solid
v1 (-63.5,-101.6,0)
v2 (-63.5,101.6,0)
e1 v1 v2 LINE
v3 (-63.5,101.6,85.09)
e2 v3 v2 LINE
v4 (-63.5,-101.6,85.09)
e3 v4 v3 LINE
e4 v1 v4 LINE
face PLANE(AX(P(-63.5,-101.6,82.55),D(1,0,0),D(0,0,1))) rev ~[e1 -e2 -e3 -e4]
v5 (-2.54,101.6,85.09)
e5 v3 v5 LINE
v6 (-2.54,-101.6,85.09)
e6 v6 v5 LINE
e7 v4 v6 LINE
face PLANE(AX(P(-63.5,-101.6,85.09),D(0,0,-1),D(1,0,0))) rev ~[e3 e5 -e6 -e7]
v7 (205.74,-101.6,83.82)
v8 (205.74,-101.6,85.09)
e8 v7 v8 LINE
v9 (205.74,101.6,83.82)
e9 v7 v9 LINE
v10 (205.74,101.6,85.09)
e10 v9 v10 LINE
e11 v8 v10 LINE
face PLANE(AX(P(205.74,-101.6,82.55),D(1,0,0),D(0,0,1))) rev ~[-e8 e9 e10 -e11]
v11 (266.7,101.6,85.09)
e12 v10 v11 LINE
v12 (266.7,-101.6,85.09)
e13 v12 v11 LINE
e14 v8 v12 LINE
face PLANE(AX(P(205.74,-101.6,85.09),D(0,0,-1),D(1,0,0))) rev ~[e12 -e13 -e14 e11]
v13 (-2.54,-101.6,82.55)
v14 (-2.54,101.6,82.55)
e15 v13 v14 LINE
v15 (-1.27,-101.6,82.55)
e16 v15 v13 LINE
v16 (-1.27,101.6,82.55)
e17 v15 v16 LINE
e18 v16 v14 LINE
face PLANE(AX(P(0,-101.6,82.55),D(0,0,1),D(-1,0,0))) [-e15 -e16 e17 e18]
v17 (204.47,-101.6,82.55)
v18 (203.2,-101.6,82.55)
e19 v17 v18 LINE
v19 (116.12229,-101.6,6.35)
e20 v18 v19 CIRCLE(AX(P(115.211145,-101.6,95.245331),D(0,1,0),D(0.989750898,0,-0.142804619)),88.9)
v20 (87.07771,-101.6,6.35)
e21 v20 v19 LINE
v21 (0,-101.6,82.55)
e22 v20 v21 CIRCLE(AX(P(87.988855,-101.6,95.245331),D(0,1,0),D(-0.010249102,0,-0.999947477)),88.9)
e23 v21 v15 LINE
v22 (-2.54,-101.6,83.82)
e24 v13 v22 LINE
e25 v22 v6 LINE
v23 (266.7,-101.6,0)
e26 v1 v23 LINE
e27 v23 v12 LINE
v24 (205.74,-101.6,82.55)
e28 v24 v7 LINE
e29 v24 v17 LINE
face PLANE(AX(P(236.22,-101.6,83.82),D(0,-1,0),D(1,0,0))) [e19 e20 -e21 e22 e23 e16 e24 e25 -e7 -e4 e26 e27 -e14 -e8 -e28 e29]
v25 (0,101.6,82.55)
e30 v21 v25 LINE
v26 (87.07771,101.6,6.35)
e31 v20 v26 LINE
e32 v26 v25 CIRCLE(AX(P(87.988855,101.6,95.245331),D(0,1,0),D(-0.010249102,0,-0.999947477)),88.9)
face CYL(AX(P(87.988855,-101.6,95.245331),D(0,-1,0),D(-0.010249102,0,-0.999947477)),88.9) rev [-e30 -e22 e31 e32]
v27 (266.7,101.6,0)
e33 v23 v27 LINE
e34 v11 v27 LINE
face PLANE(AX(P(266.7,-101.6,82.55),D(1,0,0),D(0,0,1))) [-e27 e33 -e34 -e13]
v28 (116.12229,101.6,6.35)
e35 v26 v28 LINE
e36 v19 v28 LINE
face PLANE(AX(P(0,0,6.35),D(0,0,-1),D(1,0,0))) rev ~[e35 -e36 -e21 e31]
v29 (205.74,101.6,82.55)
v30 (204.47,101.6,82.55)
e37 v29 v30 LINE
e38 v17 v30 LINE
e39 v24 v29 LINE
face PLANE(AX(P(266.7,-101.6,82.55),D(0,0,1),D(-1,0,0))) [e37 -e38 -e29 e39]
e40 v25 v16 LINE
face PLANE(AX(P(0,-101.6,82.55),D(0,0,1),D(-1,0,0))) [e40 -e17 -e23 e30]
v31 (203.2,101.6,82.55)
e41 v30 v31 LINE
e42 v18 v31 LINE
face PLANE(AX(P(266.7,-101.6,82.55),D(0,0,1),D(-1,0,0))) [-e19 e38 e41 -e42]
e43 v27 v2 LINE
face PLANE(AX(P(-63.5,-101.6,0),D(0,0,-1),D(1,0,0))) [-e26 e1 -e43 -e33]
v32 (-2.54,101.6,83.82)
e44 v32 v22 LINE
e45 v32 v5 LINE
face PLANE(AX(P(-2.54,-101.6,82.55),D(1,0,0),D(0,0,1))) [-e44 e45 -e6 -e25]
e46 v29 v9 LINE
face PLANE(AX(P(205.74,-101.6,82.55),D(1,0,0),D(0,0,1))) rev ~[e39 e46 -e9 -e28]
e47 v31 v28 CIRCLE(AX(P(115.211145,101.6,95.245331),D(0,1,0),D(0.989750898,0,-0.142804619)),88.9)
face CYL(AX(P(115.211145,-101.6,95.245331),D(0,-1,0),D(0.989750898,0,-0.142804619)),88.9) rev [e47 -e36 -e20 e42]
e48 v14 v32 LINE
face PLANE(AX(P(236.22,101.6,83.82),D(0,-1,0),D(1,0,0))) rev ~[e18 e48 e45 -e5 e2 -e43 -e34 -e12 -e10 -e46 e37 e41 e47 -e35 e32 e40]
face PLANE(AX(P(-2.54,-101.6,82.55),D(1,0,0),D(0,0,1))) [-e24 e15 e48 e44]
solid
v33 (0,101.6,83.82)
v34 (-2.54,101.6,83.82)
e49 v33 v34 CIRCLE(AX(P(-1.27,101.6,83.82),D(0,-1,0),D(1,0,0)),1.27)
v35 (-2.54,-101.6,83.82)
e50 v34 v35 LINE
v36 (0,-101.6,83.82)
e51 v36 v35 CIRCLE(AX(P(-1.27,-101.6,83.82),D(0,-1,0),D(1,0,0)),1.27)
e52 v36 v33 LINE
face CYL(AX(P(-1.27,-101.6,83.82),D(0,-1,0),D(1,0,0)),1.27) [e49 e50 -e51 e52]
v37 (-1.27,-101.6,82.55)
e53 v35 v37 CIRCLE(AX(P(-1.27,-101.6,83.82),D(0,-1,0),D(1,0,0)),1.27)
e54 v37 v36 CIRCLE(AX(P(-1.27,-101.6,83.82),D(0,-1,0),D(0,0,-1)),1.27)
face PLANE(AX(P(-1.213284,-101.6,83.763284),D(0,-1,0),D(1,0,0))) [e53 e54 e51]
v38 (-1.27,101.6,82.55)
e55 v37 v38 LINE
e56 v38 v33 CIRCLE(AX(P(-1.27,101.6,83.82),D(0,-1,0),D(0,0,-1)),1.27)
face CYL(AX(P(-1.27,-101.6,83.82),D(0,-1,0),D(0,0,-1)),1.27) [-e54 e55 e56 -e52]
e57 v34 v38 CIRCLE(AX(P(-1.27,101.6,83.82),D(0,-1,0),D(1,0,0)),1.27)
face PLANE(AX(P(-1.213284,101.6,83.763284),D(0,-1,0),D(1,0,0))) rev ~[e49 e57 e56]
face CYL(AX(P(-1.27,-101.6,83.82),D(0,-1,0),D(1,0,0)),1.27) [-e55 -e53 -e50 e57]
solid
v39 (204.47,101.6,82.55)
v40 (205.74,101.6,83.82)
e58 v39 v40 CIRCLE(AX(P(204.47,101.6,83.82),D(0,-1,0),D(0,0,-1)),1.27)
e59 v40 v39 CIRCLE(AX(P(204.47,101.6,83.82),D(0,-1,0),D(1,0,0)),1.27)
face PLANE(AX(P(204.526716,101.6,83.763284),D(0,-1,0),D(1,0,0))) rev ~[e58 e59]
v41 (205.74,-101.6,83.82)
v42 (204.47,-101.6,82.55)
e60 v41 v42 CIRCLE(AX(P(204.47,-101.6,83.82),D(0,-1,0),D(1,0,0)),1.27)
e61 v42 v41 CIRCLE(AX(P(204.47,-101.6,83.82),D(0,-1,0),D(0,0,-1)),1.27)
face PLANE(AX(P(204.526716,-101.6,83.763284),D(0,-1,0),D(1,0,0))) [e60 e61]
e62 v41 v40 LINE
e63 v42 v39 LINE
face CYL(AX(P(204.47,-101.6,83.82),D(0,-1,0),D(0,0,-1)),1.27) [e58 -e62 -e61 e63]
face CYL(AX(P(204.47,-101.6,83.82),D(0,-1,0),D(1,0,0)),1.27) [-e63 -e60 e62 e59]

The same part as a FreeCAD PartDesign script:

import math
import FreeCAD as App
import Part
import Sketcher

V = App.Vector
Q = App.Units.Quantity


def add_polygon(sketch, points):
    """Adds a closed chain of lines whose ends are joined by coincident constraints."""
    first, n = sketch.GeometryCount, len(points)
    for a, b in zip(points, points[1:] + points[:1]):
        sketch.addGeometry(Part.LineSegment(App.Vector(*a, 0), App.Vector(*b, 0)), False)
    for i in range(n):
        sketch.addConstraint(Sketcher.Constraint("Coincident", first + i, 2, first + (i + 1) % n, 1))

doc = App.newDocument("Part")
body = doc.addObject("PartDesign::Body", "Body")

# Sketch on XZ plane
sketch1 = body.newObject("Sketcher::SketchObject", "Sketch")
sketch1.AttachmentSupport = (doc.getObject("XZ_Plane"), [""])
sketch1.MapMode = "FlatFace"
add_polygon(sketch1, [(0, 6.35), (0, 0), (203.2, 0), (203.2, 6.35)])  # lines 0-3
sketch1.addConstraint(Sketcher.Constraint("Vertical", 0))
sketch1.addConstraint(Sketcher.Constraint("Horizontal", 1))
sketch1.addConstraint(Sketcher.Constraint("Vertical", 2))
sketch1.addConstraint(Sketcher.Constraint("Horizontal", 3))
sketch1.addConstraint(Sketcher.Constraint("Coincident", 0, 2, -1, 1))
sketch1.addConstraint(Sketcher.Constraint("DistanceX", 1, 1, 1, 2, Q("8 in")))
sketch1.addConstraint(Sketcher.Constraint("DistanceY", 0, 2, 0, 1, Q("0.25 in")))
pad1 = body.newObject("PartDesign::Pad", "Pad")
pad1.Profile = sketch1
pad1.Length = Q("8 in")
pad1.Midplane = True

# Sketch on XZ plane
sketch2 = body.newObject("Sketcher::SketchObject", "Sketch001")
sketch2.AttachmentSupport = (doc.getObject("XZ_Plane"), [""])
sketch2.MapMode = "FlatFace"
sketch2.AttachmentOffset = App.Placement(V(0, 0, 4 * 25.4), App.Rotation())
sketch2.addGeometry(Part.LineSegment(V(0, 82.55, 0), V(-63.5, 82.55, 0)), False)
sketch2.addGeometry(Part.LineSegment(V(-63.5, 82.55, 0), V(-63.5, 0, 0)), False)
sketch2.addGeometry(Part.LineSegment(V(-63.5, 0, 0), V(0, 0, 0)), False)
sketch2.addGeometry(Part.LineSegment(V(0, 0, 0), V(0, 6.35, 0)), False)
sketch2.addGeometry(Part.LineSegment(V(0, 6.35, 0), V(87.07771, 6.35, 0)), False)
sketch2.addGeometry(Part.ArcOfCircle(Part.Circle(V(87.988855, 95.245331, 0), V(0, 0, 1), 88.9), math.radians(-171.78983), math.radians(-90.587241)), False)
sketch2.addGeometry(Part.ArcOfCircle(Part.Circle(V(115.211145, 95.245331, 0), V(0, 0, 1), 88.9), math.radians(-89.412759), math.radians(-8.21017)), False)
sketch2.addGeometry(Part.LineSegment(V(116.12229, 6.35, 0), V(203.2, 6.35, 0)), False)
sketch2.addGeometry(Part.LineSegment(V(203.2, 6.35, 0), V(203.2, 0, 0)), False)
sketch2.addGeometry(Part.LineSegment(V(203.2, 0, 0), V(266.7, 0, 0)), False)
sketch2.addGeometry(Part.LineSegment(V(266.7, 0, 0), V(266.7, 82.55, 0)), False)
sketch2.addGeometry(Part.LineSegment(V(266.7, 82.55, 0), V(203.2, 82.55, 0)), False)
sketch2.addConstraint(Sketcher.Constraint("Coincident", 0, 2, 1, 1))
sketch2.addConstraint(Sketcher.Constraint("Coincident", 1, 2, 2, 1))
sketch2.addConstraint(Sketcher.Constraint("Coincident", 2, 2, 3, 1))
sketch2.addConstraint(Sketcher.Constraint("Coincident", 3, 2, 4, 1))
sketch2.addConstraint(Sketcher.Constraint("Coincident", 4, 2, 5, 2))
sketch2.addConstraint(Sketcher.Constraint("Coincident", 5, 1, 0, 1))
sketch2.addConstraint(Sketcher.Constraint("Coincident", 6, 1, 7, 1))
sketch2.addConstraint(Sketcher.Constraint("Coincident", 7, 2, 8, 1))
sketch2.addConstraint(Sketcher.Constraint("Coincident", 8, 2, 9, 1))
sketch2.addConstraint(Sketcher.Constraint("Coincident", 9, 2, 10, 1))
sketch2.addConstraint(Sketcher.Constraint("Coincident", 10, 2, 11, 1))
sketch2.addConstraint(Sketcher.Constraint("Coincident", 11, 2, 6, 2))
sketch2.addConstraint(Sketcher.Constraint("Horizontal", 0))
sketch2.addConstraint(Sketcher.Constraint("Vertical", 1))
sketch2.addConstraint(Sketcher.Constraint("Horizontal", 2))
sketch2.addConstraint(Sketcher.Constraint("Vertical", 3))
sketch2.addConstraint(Sketcher.Constraint("Horizontal", 4))
sketch2.addConstraint(Sketcher.Constraint("Horizontal", 7))
sketch2.addConstraint(Sketcher.Constraint("Vertical", 8))
sketch2.addConstraint(Sketcher.Constraint("Horizontal", 9))
sketch2.addConstraint(Sketcher.Constraint("Vertical", 10))
sketch2.addConstraint(Sketcher.Constraint("Horizontal", 11))
sketch2.addConstraint(Sketcher.Constraint("Coincident", 2, 2, -1, 1))
sketch2.addConstraint(Sketcher.Constraint("Equal", 5, 6))
sketch2.addConstraint(Sketcher.Constraint("PointOnObject", 5, 1, -2))
sketch2.addConstraint(Sketcher.Constraint("PointOnObject", 8, 2, -1))
sketch2.addConstraint(Sketcher.Constraint("Horizontal", 5, 3, 6, 3))
sketch2.addConstraint(Sketcher.Constraint("Horizontal", 4, 2, 6, 1))
sketch2.addConstraint(Sketcher.Constraint("Horizontal", 5, 1, 10, 2))
sketch2.addConstraint(Sketcher.Constraint("Vertical", 8, 2, 11, 2))
sketch2.addConstraint(Sketcher.Constraint("Equal", 2, 9))
sketch2.addConstraint(Sketcher.Constraint("Radius", 5, Q("3.5 in")))
sketch2.addConstraint(Sketcher.Constraint("DistanceX", 0, 2, 0, 1, Q("2.5 in")))
sketch2.addConstraint(Sketcher.Constraint("DistanceX", -1, 1, 7, 2, Q("8 in")))
sketch2.addConstraint(Sketcher.Constraint("DistanceY", 3, 2, 0, 2, Q("3 in")))
sketch2.addConstraint(Sketcher.Constraint("DistanceY", 1, 2, 1, 1, Q("3.25 in")))
sketch2.addConstraint(Sketcher.Constraint("DistanceX", 4, 1, 4, 2, Q("87.07771 mm")))
pad2 = body.newObject("PartDesign::Pad", "Pad001")
pad2.Profile = sketch2
pad2.Length = Q("8 in")
pad2.Reversed = True
body2 = doc.addObject("PartDesign::Body", "Body001")

# Sketch on XZ plane
sketch3 = body2.newObject("Sketcher::SketchObject", "Sketch002")
sketch3.AttachmentSupport = (doc.getObject("XZ_Plane001"), [""])
sketch3.MapMode = "FlatFace"
sketch3.AttachmentOffset = App.Placement(V(0, 0, 4 * 25.4), App.Rotation())
sketch3.addGeometry(Part.ArcOfCircle(Part.Circle(V(-1.27, 83.82, 0), V(0, 0, 1), 1.27), math.radians(0), math.radians(270)), False)
sketch3.addGeometry(Part.ArcOfCircle(Part.Circle(V(-1.27, 83.82, 0), V(0, 0, 1), 1.27), math.radians(-90), math.radians(0)), False)
sketch3.addConstraint(Sketcher.Constraint("Tangent", 0, 1, 1, 2))
sketch3.addConstraint(Sketcher.Constraint("Coincident", 1, 1, 0, 2))
sketch3.addConstraint(Sketcher.Constraint("PointOnObject", 0, 1, -2))
sketch3.addConstraint(Sketcher.Constraint("Horizontal", 1, 3, 0, 1))
sketch3.addConstraint(Sketcher.Constraint("Vertical", 0, 3, 1, 1))
sketch3.addConstraint(Sketcher.Constraint("Radius", 0, Q("0.05 in")))
sketch3.addConstraint(Sketcher.Constraint("DistanceY", -1, 1, 0, 3, Q("3.3 in")))
pad3 = body2.newObject("PartDesign::Pad", "Pad002")
pad3.Profile = sketch3
pad3.Length = Q("8 in")
pad3.Reversed = True
body3 = doc.addObject("PartDesign::Body", "Body002")

# Sketch on XZ plane
sketch4 = body3.newObject("Sketcher::SketchObject", "Sketch003")
sketch4.AttachmentSupport = (doc.getObject("XZ_Plane002"), [""])
sketch4.MapMode = "FlatFace"
sketch4.AttachmentOffset = App.Placement(V(0, 0, 4 * 25.4), App.Rotation())
sketch4.addGeometry(Part.ArcOfCircle(Part.Circle(V(204.47, 83.82, 0), V(0, 0, 1), 1.27), math.radians(-90), math.radians(0)), False)
sketch4.addGeometry(Part.ArcOfCircle(Part.Circle(V(204.47, 83.82, 0), V(0, 0, 1), 1.27), math.radians(0), math.radians(270)), False)
sketch4.addConstraint(Sketcher.Constraint("Tangent", 0, 1, 1, 2))
sketch4.addConstraint(Sketcher.Constraint("Coincident", 1, 1, 0, 2))
sketch4.addConstraint(Sketcher.Constraint("Horizontal", 0, 3, 1, 1))
sketch4.addConstraint(Sketcher.Constraint("Vertical", 1, 3, 0, 1))
sketch4.addConstraint(Sketcher.Constraint("Radius", 0, Q("0.05 in")))
sketch4.addConstraint(Sketcher.Constraint("DistanceY", -1, 1, 0, 3, Q("3.3 in")))
sketch4.addConstraint(Sketcher.Constraint("DistanceX", -1, 1, 1, 1, Q("8.1 in")))
pad4 = body3.newObject("PartDesign::Pad", "Pad003")
pad4.Profile = sketch4
pad4.Length = Q("8 in")
pad4.Reversed = True
body4 = doc.addObject("PartDesign::Body", "Body003")

# Sketch on XZ plane
sketch5 = body4.newObject("Sketcher::SketchObject", "Sketch004")
sketch5.AttachmentSupport = (doc.getObject("XZ_Plane003"), [""])
sketch5.MapMode = "FlatFace"
sketch5.AttachmentOffset = App.Placement(V(0, 0, 4 * 25.4), App.Rotation())
add_polygon(sketch5, [(-63.5, 85.09), (-63.5, 82.55), (-2.54, 82.55), (-2.54, 85.09)])  # lines 0-3
sketch5.addConstraint(Sketcher.Constraint("Vertical", 0))
sketch5.addConstraint(Sketcher.Constraint("Horizontal", 1))
sketch5.addConstraint(Sketcher.Constraint("Vertical", 2))
sketch5.addConstraint(Sketcher.Constraint("Horizontal", 3))
sketch5.addConstraint(Sketcher.Constraint("DistanceX", 1, 1, 1, 2, Q("2.4 in")))
sketch5.addConstraint(Sketcher.Constraint("DistanceY", 0, 2, 0, 1, Q("0.1 in")))
sketch5.addConstraint(Sketcher.Constraint("DistanceX", 0, 2, -1, 1, Q("2.5 in")))
sketch5.addConstraint(Sketcher.Constraint("DistanceY", -1, 1, 0, 2, Q("3.25 in")))
pad5 = body4.newObject("PartDesign::Pad", "Pad004")
pad5.Profile = sketch5
pad5.Length = Q("8 in")
pad5.Reversed = True
body5 = doc.addObject("PartDesign::Body", "Body004")

# Sketch on XZ plane
sketch6 = body5.newObject("Sketcher::SketchObject", "Sketch005")
sketch6.AttachmentSupport = (doc.getObject("XZ_Plane004"), [""])
sketch6.MapMode = "FlatFace"
sketch6.AttachmentOffset = App.Placement(V(0, 0, 4 * 25.4), App.Rotation())
add_polygon(sketch6, [(205.74, 85.09), (205.74, 82.55), (266.7, 82.55), (266.7, 85.09)])  # lines 0-3
sketch6.addConstraint(Sketcher.Constraint("Vertical", 0))
sketch6.addConstraint(Sketcher.Constraint("Horizontal", 1))
sketch6.addConstraint(Sketcher.Constraint("Vertical", 2))
sketch6.addConstraint(Sketcher.Constraint("Horizontal", 3))
sketch6.addConstraint(Sketcher.Constraint("DistanceX", 1, 1, 1, 2, Q("2.4 in")))
sketch6.addConstraint(Sketcher.Constraint("DistanceY", 0, 2, 0, 1, Q("0.1 in")))
sketch6.addConstraint(Sketcher.Constraint("DistanceX", -1, 1, 0, 2, Q("8.1 in")))
sketch6.addConstraint(Sketcher.Constraint("DistanceY", -1, 1, 0, 2, Q("3.25 in")))
pad6 = body5.newObject("PartDesign::Pad", "Pad005")
pad6.Profile = sketch6
pad6.Length = Q("8 in")
pad6.Reversed = True
body.AllowCompound = True
doc.recompute()

boolean = body.newObject("PartDesign::Boolean", "Boolean")
boolean.Type = "Fuse"
boolean.addObjects([body2])
doc.recompute()

boolean2 = body.newObject("PartDesign::Boolean", "Boolean001")
boolean2.Type = "Fuse"
boolean2.addObjects([body3])
doc.recompute()

boolean3 = body.newObject("PartDesign::Boolean", "Boolean002")
boolean3.Type = "Fuse"
boolean3.addObjects([body4])
doc.recompute()

boolean4 = body.newObject("PartDesign::Boolean", "Boolean003")
boolean4.Type = "Fuse"
boolean4.addObjects([body5])

doc.recompute()
